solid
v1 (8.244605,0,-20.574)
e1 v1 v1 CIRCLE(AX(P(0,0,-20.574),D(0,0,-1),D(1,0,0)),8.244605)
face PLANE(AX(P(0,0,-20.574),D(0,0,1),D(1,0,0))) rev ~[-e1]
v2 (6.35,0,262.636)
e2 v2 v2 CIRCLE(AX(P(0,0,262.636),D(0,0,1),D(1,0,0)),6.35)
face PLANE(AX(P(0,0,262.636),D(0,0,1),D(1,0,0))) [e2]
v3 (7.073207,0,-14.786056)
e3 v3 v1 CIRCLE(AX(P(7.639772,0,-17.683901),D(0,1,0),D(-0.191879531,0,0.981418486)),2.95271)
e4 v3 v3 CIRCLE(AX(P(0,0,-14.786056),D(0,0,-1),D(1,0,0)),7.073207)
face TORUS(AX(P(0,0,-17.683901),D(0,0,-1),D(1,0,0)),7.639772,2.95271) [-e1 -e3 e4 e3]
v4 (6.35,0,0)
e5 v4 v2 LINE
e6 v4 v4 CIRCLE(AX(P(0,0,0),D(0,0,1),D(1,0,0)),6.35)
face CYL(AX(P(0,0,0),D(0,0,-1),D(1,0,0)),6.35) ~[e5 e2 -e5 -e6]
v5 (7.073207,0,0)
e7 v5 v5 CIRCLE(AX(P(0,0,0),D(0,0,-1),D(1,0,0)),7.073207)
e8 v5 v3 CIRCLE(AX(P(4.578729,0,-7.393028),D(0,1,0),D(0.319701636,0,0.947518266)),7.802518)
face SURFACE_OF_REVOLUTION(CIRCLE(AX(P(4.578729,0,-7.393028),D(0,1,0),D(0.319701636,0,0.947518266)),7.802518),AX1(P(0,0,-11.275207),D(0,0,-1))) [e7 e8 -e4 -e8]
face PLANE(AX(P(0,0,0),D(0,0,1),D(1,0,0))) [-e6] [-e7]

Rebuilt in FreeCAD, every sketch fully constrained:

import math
import FreeCAD as App
import Part
import Sketcher
from FreeCAD import Vector
Q = App.Units.Quantity

doc = App.newDocument("Part")
body = doc.addObject("PartDesign::Body", "Body")

# Sketch on XY plane
sketch1 = body.newObject("Sketcher::SketchObject", "Sketch")
sketch1.AttachmentSupport = (doc.getObject("XY_Plane"), [""])
sketch1.MapMode = "FlatFace"
sketch1.addGeometry(Part.Circle(Vector(0, 0, 0), Vector(0, 0, 1), 6), False)
sketch1.addConstraint([
    Sketcher.Constraint("Coincident", 0, 3, -1, 1),
    Sketcher.Constraint("Diameter", 0, Q("0.5 in")),
])
pad1 = body.newObject("PartDesign::Pad", "Pad")
pad1.Profile = sketch1
pad1.Length = Q("10.34 in")

# Sketch on XY plane
sketch2 = body.newObject("Sketcher::SketchObject", "Sketch001")
sketch2.AttachmentSupport = (doc.getObject("XY_Plane"), [""])
sketch2.MapMode = "FlatFace"
sketch2.addGeometry(Part.Circle(Vector(0, 0, 0), Vector(0, 0, 1), 13), False)
sketch2.addConstraint([
    Sketcher.Constraint("Coincident", 0, 3, -1, 1),
    Sketcher.Constraint("Diameter", 0, Q("1 in")),
])
pad2 = body.newObject("PartDesign::Pad", "Pad001")
pad2.Profile = sketch2
pad2.Length = Q("0.81 in")
pad2.Reversed = True

# Sketch on XZ plane
sketch3 = body.newObject("Sketcher::SketchObject", "Sketch002")
sketch3.AttachmentSupport = (doc.getObject("XZ_Plane"), [""])
sketch3.MapMode = "FlatFace"
sketch3.addGeometry([
    Part.LineSegment(Vector(7.1, -20.6, 0), Vector(7.1, -25.9, 0)),  # 0
    Part.LineSegment(Vector(7.1, -25.9, 0), Vector(17.6, -25.9, 0)),  # 1
    Part.LineSegment(Vector(17.6, -25.9, 0), Vector(17.6, 2.8, 0)),  # 2
    Part.LineSegment(Vector(17.6, 2.8, 0), Vector(7.1, 2.8, 0)),  # 3
    Part.LineSegment(Vector(7.1, 2.8, 0), Vector(7.1, 0, 0)),  # 4
    Part.ArcOfCircle(Part.Circle(Vector(4.6, -7.4, 0), Vector(0, 0, 1), 7.8), math.radians(-71), math.radians(71)),  # 5
    Part.ArcOfCircle(Part.Circle(Vector(7.6, -17.7, 0), Vector(0, 0, 1), 3), math.radians(-101), math.radians(101)),  # 6
], False)
sketch3.addConstraint([
    Sketcher.Constraint("Coincident", 0, 2, 1, 1),
    Sketcher.Constraint("Coincident", 1, 2, 2, 1),
    Sketcher.Constraint("Coincident", 2, 2, 3, 1),
    Sketcher.Constraint("Coincident", 3, 2, 4, 1),
    Sketcher.Constraint("Coincident", 4, 2, 5, 2),
    Sketcher.Constraint("Coincident", 5, 1, 6, 2),
    Sketcher.Constraint("Coincident", 6, 1, 0, 1),
    Sketcher.Constraint("Vertical", 0),
    Sketcher.Constraint("Horizontal", 1),
    Sketcher.Constraint("Vertical", 2),
    Sketcher.Constraint("Horizontal", 3),
    Sketcher.Constraint("Vertical", 4),
    Sketcher.Constraint("PointOnObject", 4, 2, -1),
    Sketcher.Constraint("Vertical", 0, 2, 3, 2),
    Sketcher.Constraint("Vertical", 4, 2, 5, 1),
    Sketcher.Constraint("Radius", 6, Q("2.95271 mm")),
    Sketcher.Constraint("Radius", 5, Q("7.802518 mm")),
    Sketcher.Constraint("DistanceX", 1, 1, 1, 2, Q("10.47682 mm")),
    Sketcher.Constraint("DistanceY", 6, 3, -1, 1, Q("17.683901 mm")),
    Sketcher.Constraint("DistanceY", 0, 2, 0, 1, Q("5.349863 mm")),
    Sketcher.Constraint("DistanceY", 2, 1, 2, 2, Q("28.755524 mm")),
    Sketcher.Constraint("DistanceY", 4, 2, 4, 1, Q("2.823916 mm")),
    Sketcher.Constraint("DistanceX", -1, 1, 5, 3, Q("4.578729 mm")),
])
groove = body.newObject("PartDesign::Groove", "Groove")
groove.Profile = sketch3
groove.ReferenceAxis = (sketch3, ["V_Axis"])
groove.Angle = 360

doc.recompute()
